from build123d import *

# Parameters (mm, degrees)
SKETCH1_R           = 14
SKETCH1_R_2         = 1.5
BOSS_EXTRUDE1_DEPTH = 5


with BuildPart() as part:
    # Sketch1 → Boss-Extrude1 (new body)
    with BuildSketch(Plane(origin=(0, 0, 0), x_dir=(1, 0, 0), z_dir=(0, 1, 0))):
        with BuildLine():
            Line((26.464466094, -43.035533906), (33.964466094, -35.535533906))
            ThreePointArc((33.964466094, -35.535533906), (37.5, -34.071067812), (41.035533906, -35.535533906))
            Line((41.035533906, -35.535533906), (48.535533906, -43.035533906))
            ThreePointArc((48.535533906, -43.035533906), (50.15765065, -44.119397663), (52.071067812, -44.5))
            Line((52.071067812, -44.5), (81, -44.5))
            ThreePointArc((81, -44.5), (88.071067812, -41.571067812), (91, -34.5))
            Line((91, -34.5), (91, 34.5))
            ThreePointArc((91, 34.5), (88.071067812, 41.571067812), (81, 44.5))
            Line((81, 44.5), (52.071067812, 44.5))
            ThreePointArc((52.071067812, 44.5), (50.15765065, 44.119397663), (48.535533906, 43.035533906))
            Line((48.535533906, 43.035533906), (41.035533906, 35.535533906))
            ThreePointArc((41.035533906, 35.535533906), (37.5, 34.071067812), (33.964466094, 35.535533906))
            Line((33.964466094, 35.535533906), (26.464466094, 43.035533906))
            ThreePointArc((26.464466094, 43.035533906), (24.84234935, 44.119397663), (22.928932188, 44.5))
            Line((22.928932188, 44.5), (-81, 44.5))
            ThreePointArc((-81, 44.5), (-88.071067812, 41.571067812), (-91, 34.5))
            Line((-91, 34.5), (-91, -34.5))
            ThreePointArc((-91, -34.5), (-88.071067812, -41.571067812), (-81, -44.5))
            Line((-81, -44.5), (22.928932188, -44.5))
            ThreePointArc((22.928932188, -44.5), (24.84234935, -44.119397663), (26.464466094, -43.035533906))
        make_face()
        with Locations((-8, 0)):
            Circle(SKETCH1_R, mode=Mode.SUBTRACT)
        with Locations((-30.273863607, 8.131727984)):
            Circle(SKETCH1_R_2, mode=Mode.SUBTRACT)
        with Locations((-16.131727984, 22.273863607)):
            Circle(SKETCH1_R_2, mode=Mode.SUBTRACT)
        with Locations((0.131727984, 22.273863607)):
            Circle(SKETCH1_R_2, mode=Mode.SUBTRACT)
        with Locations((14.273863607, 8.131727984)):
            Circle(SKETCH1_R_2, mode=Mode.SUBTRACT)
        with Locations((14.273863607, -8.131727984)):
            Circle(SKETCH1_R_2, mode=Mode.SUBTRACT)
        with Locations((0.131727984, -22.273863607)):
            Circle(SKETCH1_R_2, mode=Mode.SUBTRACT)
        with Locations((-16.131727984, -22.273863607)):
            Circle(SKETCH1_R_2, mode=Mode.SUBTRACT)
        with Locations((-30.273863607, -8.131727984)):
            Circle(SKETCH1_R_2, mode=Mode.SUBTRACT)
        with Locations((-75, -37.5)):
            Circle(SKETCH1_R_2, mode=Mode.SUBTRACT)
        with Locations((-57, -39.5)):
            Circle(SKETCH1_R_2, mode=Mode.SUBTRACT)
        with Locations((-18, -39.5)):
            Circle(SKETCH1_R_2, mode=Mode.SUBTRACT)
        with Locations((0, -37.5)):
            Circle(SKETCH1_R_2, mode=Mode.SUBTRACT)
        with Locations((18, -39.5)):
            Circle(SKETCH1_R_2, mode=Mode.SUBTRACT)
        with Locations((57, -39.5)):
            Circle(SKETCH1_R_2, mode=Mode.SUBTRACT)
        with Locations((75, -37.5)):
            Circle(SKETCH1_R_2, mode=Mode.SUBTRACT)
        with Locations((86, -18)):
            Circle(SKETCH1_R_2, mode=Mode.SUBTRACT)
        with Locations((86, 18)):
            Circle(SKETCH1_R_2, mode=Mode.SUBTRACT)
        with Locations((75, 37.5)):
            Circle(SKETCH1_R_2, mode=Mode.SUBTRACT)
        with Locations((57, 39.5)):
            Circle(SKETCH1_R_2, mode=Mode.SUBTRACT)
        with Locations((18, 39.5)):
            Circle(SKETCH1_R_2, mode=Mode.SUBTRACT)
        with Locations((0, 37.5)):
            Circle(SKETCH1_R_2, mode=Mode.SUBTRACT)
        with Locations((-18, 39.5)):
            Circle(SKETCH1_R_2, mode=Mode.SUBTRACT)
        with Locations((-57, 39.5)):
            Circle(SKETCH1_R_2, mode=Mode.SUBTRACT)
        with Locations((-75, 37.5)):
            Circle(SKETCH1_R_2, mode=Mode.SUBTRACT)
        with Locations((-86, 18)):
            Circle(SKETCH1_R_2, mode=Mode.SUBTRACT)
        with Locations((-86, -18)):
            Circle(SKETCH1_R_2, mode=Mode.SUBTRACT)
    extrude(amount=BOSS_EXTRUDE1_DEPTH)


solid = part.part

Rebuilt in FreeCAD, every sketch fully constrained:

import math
import FreeCAD as App
import Part
import Sketcher

V = App.Vector

doc = App.newDocument("Part")
body = doc.addObject("PartDesign::Body", "Body")

# Sketch on XZ plane
sketch1 = body.newObject("Sketcher::SketchObject", "Sketch")
sketch1.AttachmentSupport = (doc.getObject("XZ_Plane"), [""])
sketch1.MapMode = "FlatFace"
sketch1.addGeometry([
    Part.LineSegment(V(26.464466, 43.035534, 0), V(33.964466, 35.535534, 0)),  # 0
    Part.ArcOfCircle(Part.Circle(V(37.5, 39.071068, 0), V(0, 0, 1), 5), math.radians(-135), math.radians(-45)),  # 1
    Part.LineSegment(V(41.035534, 35.535534, 0), V(48.535534, 43.035534, 0)),  # 2
    Part.ArcOfCircle(Part.Circle(V(52.071068, 39.5, 0), V(0, 0, 1), 5), math.radians(90), math.radians(135)),  # 3
    Part.LineSegment(V(52.071068, 44.5, 0), V(81, 44.5, 0)),  # 4
    Part.ArcOfCircle(Part.Circle(V(81, 34.5, 0), V(0, 0, 1), 10), math.radians(0), math.radians(90)),  # 5
    Part.LineSegment(V(91, 34.5, 0), V(91, -34.5, 0)),  # 6
    Part.ArcOfCircle(Part.Circle(V(81, -34.5, 0), V(0, 0, 1), 10), math.radians(-90), math.radians(0)),  # 7
    Part.LineSegment(V(81, -44.5, 0), V(52.071068, -44.5, 0)),  # 8
    Part.ArcOfCircle(Part.Circle(V(52.071068, -39.5, 0), V(0, 0, 1), 5), math.radians(-135), math.radians(-90)),  # 9
    Part.LineSegment(V(48.535534, -43.035534, 0), V(41.035534, -35.535534, 0)),  # 10
    Part.ArcOfCircle(Part.Circle(V(37.5, -39.071068, 0), V(0, 0, 1), 5), math.radians(45), math.radians(135)),  # 11
    Part.LineSegment(V(33.964466, -35.535534, 0), V(26.464466, -43.035534, 0)),  # 12
    Part.ArcOfCircle(Part.Circle(V(22.928932, -39.5, 0), V(0, 0, 1), 5), math.radians(-90), math.radians(-45)),  # 13
    Part.LineSegment(V(22.928932, -44.5, 0), V(-81, -44.5, 0)),  # 14
    Part.ArcOfCircle(Part.Circle(V(-81, -34.5, 0), V(0, 0, 1), 10), math.radians(180), math.radians(270)),  # 15
    Part.LineSegment(V(-91, -34.5, 0), V(-91, 34.5, 0)),  # 16
    Part.ArcOfCircle(Part.Circle(V(-81, 34.5, 0), V(0, 0, 1), 10), math.radians(90), math.radians(180)),  # 17
    Part.LineSegment(V(-81, 44.5, 0), V(22.928932, 44.5, 0)),  # 18
    Part.ArcOfCircle(Part.Circle(V(22.928932, 39.5, 0), V(0, 0, 1), 5), math.radians(45), math.radians(90)),  # 19
    Part.Circle(V(-75, 37.5, 0), V(0, 0, 1), 1.5),  # 20
    Part.Circle(V(-57, 39.5, 0), V(0, 0, 1), 1.5),  # 21
    Part.Circle(V(-18, 39.5, 0), V(0, 0, 1), 1.5),  # 22
    Part.Circle(V(-16.131728, 22.273864, 0), V(0, 0, 1), 1.5),  # 23
    Part.Circle(V(-86, 18, 0), V(0, 0, 1), 1.5),  # 24
    Part.Circle(V(-30.273864, 8.131728, 0), V(0, 0, 1), 1.5),  # 25
    Part.Circle(V(0, 37.5, 0), V(0, 0, 1), 1.5),  # 26
    Part.Circle(V(18, 39.5, 0), V(0, 0, 1), 1.5),  # 27
    Part.Circle(V(0.131728, 22.273864, 0), V(0, 0, 1), 1.5),  # 28
    Part.Circle(V(57, 39.5, 0), V(0, 0, 1), 1.5),  # 29
    Part.Circle(V(75, 37.5, 0), V(0, 0, 1), 1.5),  # 30
    Part.Circle(V(14.273864, 8.131728, 0), V(0, 0, 1), 1.5),  # 31
    Part.Circle(V(86, 18, 0), V(0, 0, 1), 1.5),  # 32
    Part.Circle(V(-86, -18, 0), V(0, 0, 1), 1.5),  # 33
    Part.Circle(V(-30.273864, -8.131728, 0), V(0, 0, 1), 1.5),  # 34
    Part.Circle(V(-8, 0, 0), V(0, 0, 1), 14),  # 35
    Part.Circle(V(-75, -37.5, 0), V(0, 0, 1), 1.5),  # 36
    Part.Circle(V(-57, -39.5, 0), V(0, 0, 1), 1.5),  # 37
    Part.Circle(V(-16.131728, -22.273864, 0), V(0, 0, 1), 1.5),  # 38
    Part.Circle(V(-18, -39.5, 0), V(0, 0, 1), 1.5),  # 39
    Part.Circle(V(14.273864, -8.131728, 0), V(0, 0, 1), 1.5),  # 40
    Part.Circle(V(86, -18, 0), V(0, 0, 1), 1.5),  # 41
    Part.Circle(V(0.131728, -22.273864, 0), V(0, 0, 1), 1.5),  # 42
    Part.Circle(V(0, -37.5, 0), V(0, 0, 1), 1.5),  # 43
    Part.Circle(V(18, -39.5, 0), V(0, 0, 1), 1.5),  # 44
    Part.Circle(V(57, -39.5, 0), V(0, 0, 1), 1.5),  # 45
    Part.Circle(V(75, -37.5, 0), V(0, 0, 1), 1.5),  # 46
], False)
sketch1.addConstraint([
    Sketcher.Constraint("Tangent", 0, 2, 1, 1),
    Sketcher.Constraint("Tangent", 1, 2, 2, 1),
    Sketcher.Constraint("Tangent", 2, 2, 3, 2),
    Sketcher.Constraint("Tangent", 3, 1, 4, 1),
    Sketcher.Constraint("Tangent", 4, 2, 5, 2),
    Sketcher.Constraint("Tangent", 5, 1, 6, 1),
    Sketcher.Constraint("Tangent", 6, 2, 7, 2),
    Sketcher.Constraint("Tangent", 7, 1, 8, 1),
    Sketcher.Constraint("Tangent", 8, 2, 9, 2),
    Sketcher.Constraint("Tangent", 9, 1, 10, 1),
    Sketcher.Constraint("Tangent", 10, 2, 11, 1),
    Sketcher.Constraint("Tangent", 11, 2, 12, 1),
    Sketcher.Constraint("Tangent", 12, 2, 13, 2),
    Sketcher.Constraint("Tangent", 13, 1, 14, 1),
    Sketcher.Constraint("Tangent", 14, 2, 15, 2),
    Sketcher.Constraint("Tangent", 15, 1, 16, 1),
    Sketcher.Constraint("Tangent", 16, 2, 17, 2),
    Sketcher.Constraint("Tangent", 17, 1, 18, 1),
    Sketcher.Constraint("Tangent", 18, 2, 19, 2),
    Sketcher.Constraint("Tangent", 19, 1, 0, 1),
    Sketcher.Constraint("Horizontal", 4),
    Sketcher.Constraint("Vertical", 6),
    Sketcher.Constraint("Horizontal", 8),
    Sketcher.Constraint("Horizontal", 14),
    Sketcher.Constraint("Vertical", 16),
    Sketcher.Constraint("Horizontal", 18),
    Sketcher.Constraint("Equal", 1, 3),
    Sketcher.Constraint("Equal", 5, 7),
    Sketcher.Constraint("Equal", 3, 9),
    Sketcher.Constraint("Equal", 9, 11),
    Sketcher.Constraint("Equal", 11, 13),
    Sketcher.Constraint("Equal", 7, 15),
    Sketcher.Constraint("Equal", 15, 17),
    Sketcher.Constraint("Equal", 13, 19),
    Sketcher.Constraint("Equal", 20, 21),
    Sketcher.Constraint("Equal", 21, 22),
    Sketcher.Constraint("Equal", 22, 23),
    Sketcher.Constraint("Equal", 23, 24),
    Sketcher.Constraint("Equal", 24, 25),
    Sketcher.Constraint("Equal", 25, 26),
    Sketcher.Constraint("Equal", 26, 27),
    Sketcher.Constraint("Equal", 27, 28),
    Sketcher.Constraint("Equal", 28, 29),
    Sketcher.Constraint("Equal", 29, 30),
    Sketcher.Constraint("Equal", 30, 31),
    Sketcher.Constraint("Equal", 31, 32),
    Sketcher.Constraint("Equal", 32, 33),
    Sketcher.Constraint("Equal", 33, 34),
    Sketcher.Constraint("Equal", 34, 36),
    Sketcher.Constraint("Equal", 36, 37),
    Sketcher.Constraint("Equal", 37, 38),
    Sketcher.Constraint("Equal", 38, 39),
    Sketcher.Constraint("Equal", 39, 40),
    Sketcher.Constraint("Equal", 40, 41),
    Sketcher.Constraint("Equal", 41, 42),
    Sketcher.Constraint("Equal", 42, 43),
    Sketcher.Constraint("Equal", 43, 44),
    Sketcher.Constraint("Equal", 44, 45),
    Sketcher.Constraint("Equal", 45, 46),
    Sketcher.Constraint("Symmetric", 5, 3, 15, 3, -1, 1),
    Sketcher.Constraint("Symmetric", 32, 3, 33, 3, -1, 1),
    Sketcher.Constraint("Symmetric", 30, 3, 36, 3, -1, 1),
    Sketcher.Constraint("Symmetric", 29, 3, 37, 3, -1, 1),
    Sketcher.Constraint("Symmetric", 27, 3, 39, 3, -1, 1),
    Sketcher.Constraint("Symmetric", 24, 3, 41, 3, -1, 1),
    Sketcher.Constraint("Symmetric", 26, 3, 43, 3, -1, 1),
    Sketcher.Constraint("Symmetric", 22, 3, 44, 3, -1, 1),
    Sketcher.Constraint("Symmetric", 21, 3, 45, 3, -1, 1),
    Sketcher.Constraint("Symmetric", 20, 3, 46, 3, -1, 1),
    Sketcher.Constraint("Symmetric", 22, 3, 27, 3, -2),
    Sketcher.Constraint("Symmetric", 21, 3, 29, 3, -2),
    Sketcher.Constraint("Symmetric", 20, 3, 30, 3, -2),
    Sketcher.Constraint("Symmetric", 24, 3, 32, 3, -2),
    Sketcher.Constraint("Symmetric", 3, 3, 9, 3, -1),
    Sketcher.Constraint("Symmetric", 1, 3, 11, 3, -1),
    Sketcher.Constraint("Symmetric", 13, 3, 19, 3, -1),
    Sketcher.Constraint("Symmetric", 25, 3, 34, 3, -1),
    Sketcher.Constraint("Symmetric", 23, 3, 38, 3, -1),
    Sketcher.Constraint("Symmetric", 31, 3, 40, 3, -1),
    Sketcher.Constraint("Symmetric", 28, 3, 42, 3, -1),
    Sketcher.Constraint("PointOnObject", 26, 3, -2),
    Sketcher.Constraint("PointOnObject", 35, 3, -1),
    Sketcher.Constraint("Perpendicular", 0, 2),
    Sketcher.Constraint("Perpendicular", 2, 10),
    Sketcher.Constraint("Horizontal", 19, 3, 21, 3),
    Sketcher.Constraint("Horizontal", 21, 3, 22, 3),
    Sketcher.Constraint("Horizontal", 20, 3, 26, 3),
    Sketcher.Constraint("Horizontal", 23, 3, 28, 3),
    Sketcher.Constraint("Horizontal", 25, 3, 31, 3),
    Sketcher.Constraint("Diameter", 20, 3.0),
    Sketcher.Constraint("Diameter", 35, 28.0),
    Sketcher.Constraint("Radius", 1, 5.0),
    Sketcher.Constraint("Radius", 5, 10.0),
    Sketcher.Constraint("DistanceY", 6, 2, 6, 1, 69.0),
    Sketcher.Constraint("DistanceX", -1, 1, 5, 3, 81.0),
    Sketcher.Constraint("DistanceX", 20, 3, -1, 1, 75.0),
    Sketcher.Constraint("DistanceX", 21, 3, -1, 1, 57.0),
    Sketcher.Constraint("DistanceX", 22, 3, -1, 1, 18.0),
    Sketcher.Constraint("DistanceX", 24, 3, -1, 1, 86.0),
    Sketcher.Constraint("DistanceY", -1, 1, 24, 3, 18.0),
    Sketcher.Constraint("DistanceX", 35, 3, -1, 1, 8.0),
    Sketcher.Constraint("DistanceY", 17, 3, 20, 3, 3.0),
    Sketcher.Constraint("DistanceX", -1, 1, 1, 3, 37.5),
    Sketcher.Constraint("DistanceX", 1, 2, 2, 2, 7.5),
    Sketcher.Constraint("DistanceX", 23, 3, 19, 3, 39.06066),
    Sketcher.Constraint("DistanceX", 31, 3, 19, 3, 8.655069),
    Sketcher.Constraint("DistanceY", 34, 3, 23, 3, 30.405592),
    Sketcher.Constraint("DistanceX", 34, 3, 28, 3, 30.405592),
    Sketcher.Constraint("DistanceY", -1, 1, 23, 3, 22.273864),
    Sketcher.Constraint("DistanceX", 25, 3, -1, 1, 30.273864),
])
pad1 = body.newObject("PartDesign::Pad", "Pad")
pad1.Profile = sketch1
pad1.Length = 5
pad1.Reversed = True

doc.recompute()
